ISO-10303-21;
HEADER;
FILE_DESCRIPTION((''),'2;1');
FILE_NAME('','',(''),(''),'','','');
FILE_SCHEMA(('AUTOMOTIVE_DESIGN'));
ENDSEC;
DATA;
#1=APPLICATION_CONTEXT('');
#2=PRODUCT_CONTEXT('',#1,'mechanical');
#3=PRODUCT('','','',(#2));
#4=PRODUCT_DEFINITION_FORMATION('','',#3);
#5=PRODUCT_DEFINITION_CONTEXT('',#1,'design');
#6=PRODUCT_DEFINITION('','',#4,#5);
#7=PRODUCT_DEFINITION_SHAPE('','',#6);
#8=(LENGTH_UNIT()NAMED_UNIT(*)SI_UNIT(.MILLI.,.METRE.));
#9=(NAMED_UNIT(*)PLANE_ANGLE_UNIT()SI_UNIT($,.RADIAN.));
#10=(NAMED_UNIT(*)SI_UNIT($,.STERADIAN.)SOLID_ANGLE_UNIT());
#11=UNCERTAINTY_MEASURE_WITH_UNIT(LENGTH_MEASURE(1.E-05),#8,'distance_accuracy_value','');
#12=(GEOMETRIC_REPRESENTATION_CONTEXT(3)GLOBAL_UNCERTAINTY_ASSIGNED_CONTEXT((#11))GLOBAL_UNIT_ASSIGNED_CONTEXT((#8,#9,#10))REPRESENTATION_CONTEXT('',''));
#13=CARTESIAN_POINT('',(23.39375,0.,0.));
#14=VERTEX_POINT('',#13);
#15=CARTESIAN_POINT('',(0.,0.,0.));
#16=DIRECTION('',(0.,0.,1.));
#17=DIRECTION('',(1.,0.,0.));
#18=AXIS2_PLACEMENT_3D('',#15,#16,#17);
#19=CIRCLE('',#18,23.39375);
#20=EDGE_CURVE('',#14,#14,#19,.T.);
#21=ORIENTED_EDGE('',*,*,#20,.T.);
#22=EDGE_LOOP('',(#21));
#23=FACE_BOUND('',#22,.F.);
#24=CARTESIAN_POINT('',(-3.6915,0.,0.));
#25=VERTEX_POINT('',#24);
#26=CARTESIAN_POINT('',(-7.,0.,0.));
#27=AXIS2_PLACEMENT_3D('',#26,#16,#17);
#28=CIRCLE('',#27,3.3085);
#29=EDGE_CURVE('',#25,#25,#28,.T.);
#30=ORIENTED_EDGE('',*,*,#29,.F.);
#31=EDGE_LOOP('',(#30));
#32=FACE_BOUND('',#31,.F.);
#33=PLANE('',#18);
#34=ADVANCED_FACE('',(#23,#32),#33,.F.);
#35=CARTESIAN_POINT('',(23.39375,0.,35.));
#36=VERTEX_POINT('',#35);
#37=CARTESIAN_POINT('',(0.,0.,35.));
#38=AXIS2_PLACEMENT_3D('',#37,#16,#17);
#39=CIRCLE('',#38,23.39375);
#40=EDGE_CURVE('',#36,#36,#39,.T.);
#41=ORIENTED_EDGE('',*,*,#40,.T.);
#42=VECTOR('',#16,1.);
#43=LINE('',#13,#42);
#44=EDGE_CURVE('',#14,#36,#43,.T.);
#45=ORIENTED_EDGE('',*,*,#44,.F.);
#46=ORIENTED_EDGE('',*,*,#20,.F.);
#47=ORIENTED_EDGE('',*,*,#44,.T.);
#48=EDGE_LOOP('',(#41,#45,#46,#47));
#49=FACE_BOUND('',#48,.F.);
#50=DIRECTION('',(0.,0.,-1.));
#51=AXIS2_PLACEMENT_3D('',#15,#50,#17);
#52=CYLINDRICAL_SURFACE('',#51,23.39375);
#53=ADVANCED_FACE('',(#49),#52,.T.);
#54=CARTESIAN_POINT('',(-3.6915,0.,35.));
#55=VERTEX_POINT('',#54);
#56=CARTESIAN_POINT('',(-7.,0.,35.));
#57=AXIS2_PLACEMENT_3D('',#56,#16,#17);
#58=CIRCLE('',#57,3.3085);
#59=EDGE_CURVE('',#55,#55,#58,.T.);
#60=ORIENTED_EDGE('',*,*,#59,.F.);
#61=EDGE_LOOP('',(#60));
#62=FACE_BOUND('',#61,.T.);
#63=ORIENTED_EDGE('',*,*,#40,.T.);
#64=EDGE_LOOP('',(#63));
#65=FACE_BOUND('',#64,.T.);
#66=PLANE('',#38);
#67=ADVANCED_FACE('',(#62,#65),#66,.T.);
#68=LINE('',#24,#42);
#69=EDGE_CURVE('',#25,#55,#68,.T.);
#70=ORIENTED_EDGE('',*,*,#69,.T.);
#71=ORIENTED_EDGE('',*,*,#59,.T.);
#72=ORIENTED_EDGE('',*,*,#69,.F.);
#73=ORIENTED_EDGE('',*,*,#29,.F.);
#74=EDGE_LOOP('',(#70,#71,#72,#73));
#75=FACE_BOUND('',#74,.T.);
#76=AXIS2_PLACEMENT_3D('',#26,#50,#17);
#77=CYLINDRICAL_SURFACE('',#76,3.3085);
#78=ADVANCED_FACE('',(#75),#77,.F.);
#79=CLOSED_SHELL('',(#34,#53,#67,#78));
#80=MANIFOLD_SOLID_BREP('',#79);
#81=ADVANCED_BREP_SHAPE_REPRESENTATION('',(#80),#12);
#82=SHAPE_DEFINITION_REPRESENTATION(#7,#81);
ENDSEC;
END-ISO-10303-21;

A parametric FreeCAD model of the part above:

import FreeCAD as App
import Part
import Sketcher

V = App.Vector

doc = App.newDocument("Part")
body = doc.addObject("PartDesign::Body", "Body")

# Sketch on XY plane
sketch1 = body.newObject("Sketcher::SketchObject", "Sketch")
sketch1.AttachmentSupport = (doc.getObject("XY_Plane"), [""])
sketch1.MapMode = "FlatFace"
sketch1.addGeometry([
    Part.Circle(V(0, 0, 0), V(0, 0, 1), 23.4),
    Part.Circle(V(-7, 0, 0), V(0, 0, 1), 3.3),
], False)
sketch1.addConstraint([
    Sketcher.Constraint("Coincident", 0, 3, -1, 1),
    Sketcher.Constraint("PointOnObject", 1, 3, -1),
    Sketcher.Constraint("Diameter", 1, 6.617),
    Sketcher.Constraint("DistanceX", 1, 3, -1, 1, 7.0),
    Sketcher.Constraint("Diameter", 0, 46.7875),
])
pad1 = body.newObject("PartDesign::Pad", "Pad")
pad1.Profile = sketch1
pad1.Length = 35

doc.recompute()
